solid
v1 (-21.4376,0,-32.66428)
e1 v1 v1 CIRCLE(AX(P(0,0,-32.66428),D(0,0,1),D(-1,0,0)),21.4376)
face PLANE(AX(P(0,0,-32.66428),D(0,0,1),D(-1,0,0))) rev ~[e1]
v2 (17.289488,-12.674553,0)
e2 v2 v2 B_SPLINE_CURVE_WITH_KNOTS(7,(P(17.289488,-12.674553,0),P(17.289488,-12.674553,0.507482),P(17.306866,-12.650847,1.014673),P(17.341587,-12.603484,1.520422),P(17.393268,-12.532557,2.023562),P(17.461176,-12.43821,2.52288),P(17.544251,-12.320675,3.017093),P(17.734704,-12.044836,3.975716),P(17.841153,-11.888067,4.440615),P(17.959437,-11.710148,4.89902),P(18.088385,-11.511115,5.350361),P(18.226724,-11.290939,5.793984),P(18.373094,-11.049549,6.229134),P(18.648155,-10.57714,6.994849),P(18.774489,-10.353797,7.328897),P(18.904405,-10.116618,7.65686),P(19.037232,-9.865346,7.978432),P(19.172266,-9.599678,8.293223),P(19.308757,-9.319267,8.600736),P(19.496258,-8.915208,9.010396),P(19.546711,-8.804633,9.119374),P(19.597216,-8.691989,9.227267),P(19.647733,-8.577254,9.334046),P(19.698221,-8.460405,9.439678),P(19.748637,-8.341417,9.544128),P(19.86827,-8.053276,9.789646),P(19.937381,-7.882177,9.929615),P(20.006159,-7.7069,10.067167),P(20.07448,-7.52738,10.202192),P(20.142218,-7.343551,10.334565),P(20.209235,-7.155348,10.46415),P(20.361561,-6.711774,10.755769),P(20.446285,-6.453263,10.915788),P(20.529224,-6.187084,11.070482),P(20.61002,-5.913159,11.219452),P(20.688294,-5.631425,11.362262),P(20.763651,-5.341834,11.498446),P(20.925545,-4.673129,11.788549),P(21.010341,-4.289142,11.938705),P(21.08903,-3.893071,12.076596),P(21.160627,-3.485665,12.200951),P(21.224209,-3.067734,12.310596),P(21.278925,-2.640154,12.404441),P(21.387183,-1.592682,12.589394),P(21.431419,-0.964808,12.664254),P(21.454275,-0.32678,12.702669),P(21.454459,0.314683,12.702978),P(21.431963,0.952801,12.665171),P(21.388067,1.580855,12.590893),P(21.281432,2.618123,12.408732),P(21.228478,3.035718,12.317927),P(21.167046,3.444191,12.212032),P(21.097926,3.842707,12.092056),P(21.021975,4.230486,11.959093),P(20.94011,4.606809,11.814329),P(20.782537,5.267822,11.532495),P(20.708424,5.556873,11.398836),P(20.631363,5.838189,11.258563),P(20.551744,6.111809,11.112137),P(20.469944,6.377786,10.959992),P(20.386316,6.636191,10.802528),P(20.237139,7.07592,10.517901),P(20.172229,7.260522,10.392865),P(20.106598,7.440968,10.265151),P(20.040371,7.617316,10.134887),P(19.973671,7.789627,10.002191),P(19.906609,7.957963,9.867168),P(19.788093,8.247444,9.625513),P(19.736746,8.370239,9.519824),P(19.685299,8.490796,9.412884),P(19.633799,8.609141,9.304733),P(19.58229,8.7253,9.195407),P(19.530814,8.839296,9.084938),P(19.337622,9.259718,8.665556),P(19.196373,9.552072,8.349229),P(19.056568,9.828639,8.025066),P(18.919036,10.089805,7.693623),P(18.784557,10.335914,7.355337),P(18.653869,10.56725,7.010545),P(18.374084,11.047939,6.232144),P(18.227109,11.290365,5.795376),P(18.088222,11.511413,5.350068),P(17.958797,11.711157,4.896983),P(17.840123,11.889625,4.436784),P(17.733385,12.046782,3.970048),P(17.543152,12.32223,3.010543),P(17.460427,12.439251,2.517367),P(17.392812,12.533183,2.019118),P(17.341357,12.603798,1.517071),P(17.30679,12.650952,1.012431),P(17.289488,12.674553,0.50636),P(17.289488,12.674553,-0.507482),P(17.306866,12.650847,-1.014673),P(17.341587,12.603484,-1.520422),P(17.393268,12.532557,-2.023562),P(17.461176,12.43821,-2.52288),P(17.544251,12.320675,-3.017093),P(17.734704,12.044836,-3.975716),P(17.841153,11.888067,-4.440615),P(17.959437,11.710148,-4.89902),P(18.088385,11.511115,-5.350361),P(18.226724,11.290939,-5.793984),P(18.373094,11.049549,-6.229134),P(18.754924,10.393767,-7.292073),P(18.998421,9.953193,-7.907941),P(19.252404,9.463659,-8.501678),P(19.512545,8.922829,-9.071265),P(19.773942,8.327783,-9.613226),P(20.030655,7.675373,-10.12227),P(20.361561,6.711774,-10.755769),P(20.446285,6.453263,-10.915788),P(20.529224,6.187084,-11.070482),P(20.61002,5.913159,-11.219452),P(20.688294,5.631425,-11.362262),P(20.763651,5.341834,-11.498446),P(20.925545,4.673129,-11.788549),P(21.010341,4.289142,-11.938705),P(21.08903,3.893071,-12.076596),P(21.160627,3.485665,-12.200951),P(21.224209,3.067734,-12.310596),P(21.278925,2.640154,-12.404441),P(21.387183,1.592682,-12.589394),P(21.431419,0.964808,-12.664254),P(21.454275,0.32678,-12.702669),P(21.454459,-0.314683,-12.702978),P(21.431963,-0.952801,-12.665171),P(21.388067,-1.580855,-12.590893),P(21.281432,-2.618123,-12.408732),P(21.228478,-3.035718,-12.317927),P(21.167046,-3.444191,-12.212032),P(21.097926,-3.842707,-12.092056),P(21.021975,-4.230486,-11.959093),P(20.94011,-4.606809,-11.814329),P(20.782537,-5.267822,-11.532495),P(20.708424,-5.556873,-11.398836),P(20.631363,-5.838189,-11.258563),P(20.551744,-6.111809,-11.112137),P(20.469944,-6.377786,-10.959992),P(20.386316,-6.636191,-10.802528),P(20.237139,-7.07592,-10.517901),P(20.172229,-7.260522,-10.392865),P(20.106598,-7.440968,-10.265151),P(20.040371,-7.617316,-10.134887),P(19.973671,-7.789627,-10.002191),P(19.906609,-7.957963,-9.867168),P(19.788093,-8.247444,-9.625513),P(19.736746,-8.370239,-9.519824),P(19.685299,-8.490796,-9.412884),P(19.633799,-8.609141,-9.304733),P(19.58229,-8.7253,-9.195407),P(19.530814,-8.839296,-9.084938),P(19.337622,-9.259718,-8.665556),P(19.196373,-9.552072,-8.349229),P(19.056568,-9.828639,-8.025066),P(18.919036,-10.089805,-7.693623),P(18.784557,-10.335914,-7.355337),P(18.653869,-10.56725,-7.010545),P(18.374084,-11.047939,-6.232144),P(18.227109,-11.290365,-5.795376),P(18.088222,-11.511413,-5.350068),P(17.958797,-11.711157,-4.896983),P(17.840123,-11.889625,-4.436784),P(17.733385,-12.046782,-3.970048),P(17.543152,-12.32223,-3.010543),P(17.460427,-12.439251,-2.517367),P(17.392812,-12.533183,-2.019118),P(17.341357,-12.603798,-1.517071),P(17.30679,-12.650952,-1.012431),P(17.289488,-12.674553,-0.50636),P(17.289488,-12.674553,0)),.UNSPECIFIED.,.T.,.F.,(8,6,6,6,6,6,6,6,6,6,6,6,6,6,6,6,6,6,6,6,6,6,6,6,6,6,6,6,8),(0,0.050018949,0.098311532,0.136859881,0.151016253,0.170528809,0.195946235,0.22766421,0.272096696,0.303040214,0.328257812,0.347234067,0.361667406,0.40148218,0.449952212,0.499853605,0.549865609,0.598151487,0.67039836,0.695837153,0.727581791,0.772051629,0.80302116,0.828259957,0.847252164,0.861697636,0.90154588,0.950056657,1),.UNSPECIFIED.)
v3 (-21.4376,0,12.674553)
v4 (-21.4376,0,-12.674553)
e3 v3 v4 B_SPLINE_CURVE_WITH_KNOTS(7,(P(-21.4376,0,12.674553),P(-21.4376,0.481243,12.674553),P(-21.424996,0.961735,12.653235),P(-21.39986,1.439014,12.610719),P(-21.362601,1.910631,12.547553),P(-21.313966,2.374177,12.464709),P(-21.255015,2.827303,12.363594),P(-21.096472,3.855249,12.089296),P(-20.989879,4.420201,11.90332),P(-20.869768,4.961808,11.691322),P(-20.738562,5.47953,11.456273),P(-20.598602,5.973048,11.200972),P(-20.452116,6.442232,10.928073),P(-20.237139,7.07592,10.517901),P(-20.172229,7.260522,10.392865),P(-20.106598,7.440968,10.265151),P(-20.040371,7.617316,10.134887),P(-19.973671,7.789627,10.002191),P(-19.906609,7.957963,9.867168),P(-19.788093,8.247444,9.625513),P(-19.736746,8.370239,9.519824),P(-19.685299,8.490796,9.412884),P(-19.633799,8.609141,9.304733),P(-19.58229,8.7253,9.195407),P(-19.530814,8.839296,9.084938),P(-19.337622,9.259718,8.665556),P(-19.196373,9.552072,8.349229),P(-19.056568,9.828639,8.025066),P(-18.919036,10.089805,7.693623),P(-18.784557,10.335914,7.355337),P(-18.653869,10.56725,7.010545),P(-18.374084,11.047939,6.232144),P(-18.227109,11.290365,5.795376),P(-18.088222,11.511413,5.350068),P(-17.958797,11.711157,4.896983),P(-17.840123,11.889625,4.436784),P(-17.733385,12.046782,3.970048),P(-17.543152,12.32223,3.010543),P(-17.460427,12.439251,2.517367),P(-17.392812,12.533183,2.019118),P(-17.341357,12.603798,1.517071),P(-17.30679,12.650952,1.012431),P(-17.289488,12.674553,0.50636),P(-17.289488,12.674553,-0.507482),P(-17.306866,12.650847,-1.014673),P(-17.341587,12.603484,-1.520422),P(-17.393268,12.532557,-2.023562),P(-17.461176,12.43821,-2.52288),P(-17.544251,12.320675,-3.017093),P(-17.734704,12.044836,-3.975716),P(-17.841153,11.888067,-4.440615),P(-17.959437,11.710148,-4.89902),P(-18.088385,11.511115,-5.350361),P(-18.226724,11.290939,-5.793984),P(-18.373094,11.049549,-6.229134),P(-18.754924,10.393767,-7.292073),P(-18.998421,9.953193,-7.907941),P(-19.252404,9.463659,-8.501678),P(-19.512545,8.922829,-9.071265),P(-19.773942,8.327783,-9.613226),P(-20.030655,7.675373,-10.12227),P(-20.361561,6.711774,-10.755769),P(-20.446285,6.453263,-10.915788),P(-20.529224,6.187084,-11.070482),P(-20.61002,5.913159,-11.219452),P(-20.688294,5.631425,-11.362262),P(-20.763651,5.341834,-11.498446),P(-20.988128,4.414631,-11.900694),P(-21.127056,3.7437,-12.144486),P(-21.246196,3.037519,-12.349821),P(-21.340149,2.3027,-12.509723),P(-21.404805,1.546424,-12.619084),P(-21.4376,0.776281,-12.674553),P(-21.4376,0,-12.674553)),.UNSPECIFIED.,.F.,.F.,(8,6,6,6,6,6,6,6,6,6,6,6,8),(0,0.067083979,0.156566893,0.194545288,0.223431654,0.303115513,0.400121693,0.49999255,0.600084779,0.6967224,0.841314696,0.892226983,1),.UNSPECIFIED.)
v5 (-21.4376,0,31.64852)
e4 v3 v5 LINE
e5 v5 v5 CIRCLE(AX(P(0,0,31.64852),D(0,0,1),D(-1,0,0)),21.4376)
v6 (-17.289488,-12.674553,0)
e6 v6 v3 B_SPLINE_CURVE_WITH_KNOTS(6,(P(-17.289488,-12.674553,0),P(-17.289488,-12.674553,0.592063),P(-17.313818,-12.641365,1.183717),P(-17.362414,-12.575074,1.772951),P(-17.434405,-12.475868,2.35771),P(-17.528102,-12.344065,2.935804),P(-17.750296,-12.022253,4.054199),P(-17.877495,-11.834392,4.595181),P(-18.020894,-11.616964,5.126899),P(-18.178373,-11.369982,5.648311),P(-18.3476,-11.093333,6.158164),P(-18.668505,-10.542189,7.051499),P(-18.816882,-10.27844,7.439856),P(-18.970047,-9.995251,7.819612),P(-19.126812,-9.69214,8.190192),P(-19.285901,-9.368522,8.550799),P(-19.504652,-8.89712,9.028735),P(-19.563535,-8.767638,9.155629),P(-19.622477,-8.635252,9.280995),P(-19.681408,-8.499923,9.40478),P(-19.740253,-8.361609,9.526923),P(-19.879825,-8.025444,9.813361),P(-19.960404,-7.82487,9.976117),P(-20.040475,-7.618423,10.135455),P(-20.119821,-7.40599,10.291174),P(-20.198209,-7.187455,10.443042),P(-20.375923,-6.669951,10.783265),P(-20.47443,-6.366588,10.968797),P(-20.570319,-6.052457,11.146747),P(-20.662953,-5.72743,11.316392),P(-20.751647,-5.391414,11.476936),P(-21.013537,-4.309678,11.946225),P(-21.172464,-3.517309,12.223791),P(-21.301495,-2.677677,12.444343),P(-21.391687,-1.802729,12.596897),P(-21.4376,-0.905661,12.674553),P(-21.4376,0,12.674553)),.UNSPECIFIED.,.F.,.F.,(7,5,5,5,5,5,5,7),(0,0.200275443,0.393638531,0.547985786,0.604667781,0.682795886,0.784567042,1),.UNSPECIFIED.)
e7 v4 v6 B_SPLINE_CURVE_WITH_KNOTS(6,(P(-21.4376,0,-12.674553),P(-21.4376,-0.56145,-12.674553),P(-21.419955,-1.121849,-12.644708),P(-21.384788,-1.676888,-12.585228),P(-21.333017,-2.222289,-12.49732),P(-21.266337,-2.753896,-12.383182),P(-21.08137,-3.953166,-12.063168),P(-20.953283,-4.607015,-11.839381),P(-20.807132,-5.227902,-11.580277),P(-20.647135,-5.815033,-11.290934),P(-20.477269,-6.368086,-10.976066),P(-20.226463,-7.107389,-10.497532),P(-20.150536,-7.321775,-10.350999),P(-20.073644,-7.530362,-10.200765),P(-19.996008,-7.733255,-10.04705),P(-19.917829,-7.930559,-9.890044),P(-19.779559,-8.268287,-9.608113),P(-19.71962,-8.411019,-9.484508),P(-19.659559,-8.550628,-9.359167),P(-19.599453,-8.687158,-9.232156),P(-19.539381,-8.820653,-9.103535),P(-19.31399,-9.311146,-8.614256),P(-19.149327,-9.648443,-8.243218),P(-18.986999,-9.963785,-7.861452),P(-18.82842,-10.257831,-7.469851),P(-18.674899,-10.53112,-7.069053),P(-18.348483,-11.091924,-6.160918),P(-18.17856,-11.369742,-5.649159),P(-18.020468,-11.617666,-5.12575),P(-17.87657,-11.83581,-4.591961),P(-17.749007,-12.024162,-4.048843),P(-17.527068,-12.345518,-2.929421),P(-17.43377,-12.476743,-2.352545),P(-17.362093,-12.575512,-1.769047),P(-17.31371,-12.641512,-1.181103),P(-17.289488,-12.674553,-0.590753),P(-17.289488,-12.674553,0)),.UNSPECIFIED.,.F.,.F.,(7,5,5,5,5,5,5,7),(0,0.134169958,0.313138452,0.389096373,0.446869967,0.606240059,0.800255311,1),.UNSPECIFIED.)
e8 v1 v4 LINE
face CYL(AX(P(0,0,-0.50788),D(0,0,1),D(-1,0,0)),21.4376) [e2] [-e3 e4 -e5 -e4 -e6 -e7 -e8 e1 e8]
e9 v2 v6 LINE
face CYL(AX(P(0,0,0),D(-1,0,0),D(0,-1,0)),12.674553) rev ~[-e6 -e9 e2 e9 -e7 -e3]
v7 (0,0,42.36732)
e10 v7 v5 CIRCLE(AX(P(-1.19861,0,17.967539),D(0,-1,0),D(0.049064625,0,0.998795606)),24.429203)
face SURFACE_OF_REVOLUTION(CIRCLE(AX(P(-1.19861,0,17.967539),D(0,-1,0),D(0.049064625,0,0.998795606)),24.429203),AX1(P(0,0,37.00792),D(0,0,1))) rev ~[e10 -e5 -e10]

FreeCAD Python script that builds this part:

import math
import FreeCAD as App
import Part
import Sketcher

V = App.Vector
Q = App.Units.Quantity

doc = App.newDocument("Part")
body = doc.addObject("PartDesign::Body", "Body")

sketch1 = body.newObject("Sketcher::SketchObject", "Sketch")
sketch1.AttachmentSupport = (doc.getObject("XZ_Plane"), [""])
sketch1.MapMode = "FlatFace"
sketch1.addGeometry(Part.ArcOfCircle(Part.Circle(V(-1.19861, 17.967539, 0), V(0, 0, 1), 24.429203), math.radians(87.187675), math.radians(145.942427)), False)
sketch1.addGeometry(Part.LineSegment(V(-21.4376, 31.64852, 0), V(-21.4376, -32.66428, 0)), False)
sketch1.addGeometry(Part.LineSegment(V(-21.4376, -32.66428, 0), V(0, -32.66428, 0)), False)
sketch1.addGeometry(Part.LineSegment(V(0, -32.66428, 0), V(0, 42.36732, 0)), False)
sketch1.addConstraint(Sketcher.Constraint("Coincident", 0, 2, 1, 1))
sketch1.addConstraint(Sketcher.Constraint("Coincident", 1, 2, 2, 1))
sketch1.addConstraint(Sketcher.Constraint("Coincident", 2, 2, 3, 1))
sketch1.addConstraint(Sketcher.Constraint("Coincident", 3, 2, 0, 1))
sketch1.addConstraint(Sketcher.Constraint("Vertical", 1))
sketch1.addConstraint(Sketcher.Constraint("Horizontal", 2))
sketch1.addConstraint(Sketcher.Constraint("Vertical", 3))
sketch1.addConstraint(Sketcher.Constraint("PointOnObject", 2, 2, -2))
sketch1.addConstraint(Sketcher.Constraint("DistanceX", 2, 1, 2, 2, Q("0.844 in")))
sketch1.addConstraint(Sketcher.Constraint("DistanceY", 1, 2, 1, 1, Q("2.532 in")))
sketch1.addConstraint(Sketcher.Constraint("DistanceY", 3, 1, 3, 2, Q("2.954 in")))
sketch1.addConstraint(Sketcher.Constraint("Radius", 0, Q("24.429203 mm")))
sketch1.addConstraint(Sketcher.Constraint("DistanceY", -1, 1, 0, 3, Q("17.967539 mm")))
revolution = body.newObject("PartDesign::Revolution", "Revolution")
revolution.Profile = sketch1
revolution.ReferenceAxis = (sketch1, ["V_Axis"])
revolution.Angle = 360

sketch2 = body.newObject("Sketcher::SketchObject", "Sketch001")
sketch2.AttachmentSupport = (doc.getObject("YZ_Plane"), [""])
sketch2.MapMode = "FlatFace"
sketch2.addGeometry(Part.Circle(V(0, 0, 0), V(0, 0, 1), 12.674553), False)
sketch2.addConstraint(Sketcher.Constraint("Coincident", 0, 3, -1, 1))
sketch2.addConstraint(Sketcher.Constraint("Diameter", 0, Q("25.349106 mm")))
pocket1 = body.newObject("PartDesign::Pocket", "Pocket")
pocket1.Profile = sketch2
pocket1.Length = Q("2.5 in")
pocket1.Midplane = True

doc.recompute()
